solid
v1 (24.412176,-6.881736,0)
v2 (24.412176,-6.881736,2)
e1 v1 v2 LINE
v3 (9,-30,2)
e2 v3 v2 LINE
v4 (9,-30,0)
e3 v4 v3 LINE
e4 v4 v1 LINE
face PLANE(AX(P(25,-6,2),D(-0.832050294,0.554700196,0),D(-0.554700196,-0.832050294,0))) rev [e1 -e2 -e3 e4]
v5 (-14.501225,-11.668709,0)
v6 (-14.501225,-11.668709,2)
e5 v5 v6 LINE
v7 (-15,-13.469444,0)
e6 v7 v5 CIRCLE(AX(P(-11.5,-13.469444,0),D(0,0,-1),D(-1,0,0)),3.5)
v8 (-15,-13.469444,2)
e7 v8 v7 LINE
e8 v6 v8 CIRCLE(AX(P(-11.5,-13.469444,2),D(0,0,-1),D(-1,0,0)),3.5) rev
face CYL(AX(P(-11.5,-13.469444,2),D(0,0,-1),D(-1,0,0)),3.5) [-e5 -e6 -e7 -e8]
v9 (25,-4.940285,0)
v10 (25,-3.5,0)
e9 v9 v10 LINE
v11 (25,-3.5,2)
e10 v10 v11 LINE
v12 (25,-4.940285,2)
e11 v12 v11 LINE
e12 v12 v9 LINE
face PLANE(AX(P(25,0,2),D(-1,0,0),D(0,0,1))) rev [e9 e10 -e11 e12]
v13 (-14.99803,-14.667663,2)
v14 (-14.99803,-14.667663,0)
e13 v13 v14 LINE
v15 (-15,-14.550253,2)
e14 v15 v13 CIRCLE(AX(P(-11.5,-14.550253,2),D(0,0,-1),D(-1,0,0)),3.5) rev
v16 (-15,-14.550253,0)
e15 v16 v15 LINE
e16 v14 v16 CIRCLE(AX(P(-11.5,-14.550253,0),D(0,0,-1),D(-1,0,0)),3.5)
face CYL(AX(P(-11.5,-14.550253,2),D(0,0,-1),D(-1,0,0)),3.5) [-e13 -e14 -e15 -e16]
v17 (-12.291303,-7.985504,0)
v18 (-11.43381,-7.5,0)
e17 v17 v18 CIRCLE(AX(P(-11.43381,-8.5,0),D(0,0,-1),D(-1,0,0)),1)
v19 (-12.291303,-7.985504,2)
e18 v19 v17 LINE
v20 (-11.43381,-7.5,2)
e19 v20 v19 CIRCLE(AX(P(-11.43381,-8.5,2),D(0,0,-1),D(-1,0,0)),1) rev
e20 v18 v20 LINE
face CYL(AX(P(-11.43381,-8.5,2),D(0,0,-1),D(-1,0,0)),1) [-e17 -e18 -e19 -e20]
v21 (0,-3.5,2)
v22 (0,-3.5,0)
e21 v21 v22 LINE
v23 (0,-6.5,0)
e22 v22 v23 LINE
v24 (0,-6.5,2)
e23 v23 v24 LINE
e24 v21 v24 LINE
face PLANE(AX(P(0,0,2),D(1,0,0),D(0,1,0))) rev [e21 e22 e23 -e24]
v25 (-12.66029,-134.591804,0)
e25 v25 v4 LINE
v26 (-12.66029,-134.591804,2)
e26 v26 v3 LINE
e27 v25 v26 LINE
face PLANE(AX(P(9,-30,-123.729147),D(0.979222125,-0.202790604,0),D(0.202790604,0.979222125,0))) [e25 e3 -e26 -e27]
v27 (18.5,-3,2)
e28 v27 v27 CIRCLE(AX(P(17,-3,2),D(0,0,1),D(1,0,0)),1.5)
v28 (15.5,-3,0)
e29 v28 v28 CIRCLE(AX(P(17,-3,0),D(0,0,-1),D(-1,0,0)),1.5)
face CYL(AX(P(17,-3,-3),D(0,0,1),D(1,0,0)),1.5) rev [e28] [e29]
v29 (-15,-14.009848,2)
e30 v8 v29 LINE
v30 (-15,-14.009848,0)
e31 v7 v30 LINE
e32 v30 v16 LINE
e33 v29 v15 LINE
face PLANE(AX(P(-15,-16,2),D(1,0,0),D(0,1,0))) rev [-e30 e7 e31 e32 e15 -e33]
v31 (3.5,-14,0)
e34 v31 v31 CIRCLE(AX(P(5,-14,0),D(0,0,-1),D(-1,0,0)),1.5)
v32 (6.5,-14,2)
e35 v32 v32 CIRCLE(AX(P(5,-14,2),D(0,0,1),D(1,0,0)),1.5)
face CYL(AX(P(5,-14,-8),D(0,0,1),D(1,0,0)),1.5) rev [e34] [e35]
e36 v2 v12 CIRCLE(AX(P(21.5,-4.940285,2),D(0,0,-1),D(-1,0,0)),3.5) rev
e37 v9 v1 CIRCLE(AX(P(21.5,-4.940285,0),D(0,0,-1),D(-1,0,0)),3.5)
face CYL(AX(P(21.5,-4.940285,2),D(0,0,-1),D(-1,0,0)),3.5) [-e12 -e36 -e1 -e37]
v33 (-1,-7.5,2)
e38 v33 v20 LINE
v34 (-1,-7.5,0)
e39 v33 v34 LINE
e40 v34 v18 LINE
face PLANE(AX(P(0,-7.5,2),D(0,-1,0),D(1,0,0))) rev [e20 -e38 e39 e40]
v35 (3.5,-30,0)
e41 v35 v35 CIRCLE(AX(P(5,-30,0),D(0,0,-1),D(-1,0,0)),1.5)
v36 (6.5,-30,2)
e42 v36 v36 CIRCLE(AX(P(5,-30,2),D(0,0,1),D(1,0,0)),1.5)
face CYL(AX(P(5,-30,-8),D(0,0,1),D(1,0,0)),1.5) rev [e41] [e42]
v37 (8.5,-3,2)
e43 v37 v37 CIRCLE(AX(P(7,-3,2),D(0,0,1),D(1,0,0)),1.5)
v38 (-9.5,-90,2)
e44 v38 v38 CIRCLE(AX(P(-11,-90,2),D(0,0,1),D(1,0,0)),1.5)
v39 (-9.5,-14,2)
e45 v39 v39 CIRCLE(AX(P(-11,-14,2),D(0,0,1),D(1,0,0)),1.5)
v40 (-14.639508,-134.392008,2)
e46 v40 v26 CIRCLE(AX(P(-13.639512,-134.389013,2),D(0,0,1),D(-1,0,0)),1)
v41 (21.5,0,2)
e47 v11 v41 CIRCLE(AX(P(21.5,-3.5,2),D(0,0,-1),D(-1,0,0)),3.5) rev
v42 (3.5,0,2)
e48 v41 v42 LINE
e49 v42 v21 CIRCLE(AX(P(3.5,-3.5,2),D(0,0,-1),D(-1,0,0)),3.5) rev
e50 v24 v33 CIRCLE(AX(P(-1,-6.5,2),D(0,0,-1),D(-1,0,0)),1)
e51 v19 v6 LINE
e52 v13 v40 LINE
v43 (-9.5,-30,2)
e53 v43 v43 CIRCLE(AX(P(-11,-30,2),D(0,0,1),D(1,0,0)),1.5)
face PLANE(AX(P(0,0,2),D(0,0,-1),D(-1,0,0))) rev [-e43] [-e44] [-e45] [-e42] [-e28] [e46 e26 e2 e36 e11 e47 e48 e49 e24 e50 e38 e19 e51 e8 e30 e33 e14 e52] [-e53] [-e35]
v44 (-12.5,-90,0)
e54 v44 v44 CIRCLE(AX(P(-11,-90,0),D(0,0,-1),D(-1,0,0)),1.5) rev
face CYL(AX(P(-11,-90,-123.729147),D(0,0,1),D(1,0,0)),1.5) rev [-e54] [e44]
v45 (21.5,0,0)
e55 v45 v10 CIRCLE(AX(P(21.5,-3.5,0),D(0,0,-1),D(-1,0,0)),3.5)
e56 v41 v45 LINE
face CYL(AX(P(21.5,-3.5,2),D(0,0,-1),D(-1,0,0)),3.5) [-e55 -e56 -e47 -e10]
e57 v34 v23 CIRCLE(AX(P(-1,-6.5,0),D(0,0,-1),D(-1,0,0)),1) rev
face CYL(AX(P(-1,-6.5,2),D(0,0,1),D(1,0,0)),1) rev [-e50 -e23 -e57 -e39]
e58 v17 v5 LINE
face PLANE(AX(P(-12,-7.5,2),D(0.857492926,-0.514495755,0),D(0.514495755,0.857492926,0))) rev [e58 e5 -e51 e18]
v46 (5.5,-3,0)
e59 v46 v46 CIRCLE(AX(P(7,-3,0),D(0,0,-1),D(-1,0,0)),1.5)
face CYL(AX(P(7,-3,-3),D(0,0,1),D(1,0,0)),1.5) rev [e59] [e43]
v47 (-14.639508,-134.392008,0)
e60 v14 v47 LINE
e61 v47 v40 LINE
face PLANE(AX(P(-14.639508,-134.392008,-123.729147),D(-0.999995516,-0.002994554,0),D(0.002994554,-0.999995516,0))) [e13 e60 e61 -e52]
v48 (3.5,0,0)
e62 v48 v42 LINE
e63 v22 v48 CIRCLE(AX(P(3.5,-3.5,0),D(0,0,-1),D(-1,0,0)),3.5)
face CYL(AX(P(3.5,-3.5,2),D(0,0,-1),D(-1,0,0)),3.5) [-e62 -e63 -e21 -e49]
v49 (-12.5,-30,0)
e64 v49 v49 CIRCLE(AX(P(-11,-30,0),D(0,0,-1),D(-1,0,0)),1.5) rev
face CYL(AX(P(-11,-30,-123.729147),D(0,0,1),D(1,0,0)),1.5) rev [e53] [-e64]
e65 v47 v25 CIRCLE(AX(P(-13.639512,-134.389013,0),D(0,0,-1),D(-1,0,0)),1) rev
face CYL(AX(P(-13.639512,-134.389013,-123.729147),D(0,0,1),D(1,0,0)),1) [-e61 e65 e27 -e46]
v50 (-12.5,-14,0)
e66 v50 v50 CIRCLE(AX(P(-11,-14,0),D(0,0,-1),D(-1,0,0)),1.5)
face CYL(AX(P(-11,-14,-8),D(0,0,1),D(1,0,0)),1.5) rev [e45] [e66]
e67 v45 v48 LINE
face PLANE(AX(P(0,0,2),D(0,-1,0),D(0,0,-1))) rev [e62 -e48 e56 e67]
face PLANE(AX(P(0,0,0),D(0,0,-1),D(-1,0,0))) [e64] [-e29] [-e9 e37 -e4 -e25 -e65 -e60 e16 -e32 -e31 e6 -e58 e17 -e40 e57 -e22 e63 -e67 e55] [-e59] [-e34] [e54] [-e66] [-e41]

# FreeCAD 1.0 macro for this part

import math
import FreeCAD as App
import Part
import Sketcher
Q = App.Units.Quantity


def edges_at(feature, points):
    """Names of the edges that pass closest to the given points."""
    edges = feature.Shape.Edges
    near = lambda p: min(range(len(edges)), key=lambda i: edges[i].distToShape(Part.Vertex(*p))[0])
    return sorted({f"Edge{near(p) + 1}" for p in points})

doc = App.newDocument("Part")
body = doc.addObject("PartDesign::Body", "Body")

sketch1 = doc.addObject("Sketcher::SketchObject", "Sketch")
body.addObject(sketch1)
sketch1.AttachmentSupport = (doc.XY_Plane, [""])
sketch1.MapMode = "FlatFace"
sketch1.addGeometry([
    Part.LineSegment(App.Vector(-15, -16, 0), App.Vector(5, -36, 0)),
    Part.LineSegment(App.Vector(5, -36, 0), App.Vector(25, -6, 0)),
    Part.LineSegment(App.Vector(25, -6, 0), App.Vector(25, 0, 0)),
    Part.LineSegment(App.Vector(25, 0, 0), App.Vector(0, 0, 0)),
    Part.LineSegment(App.Vector(0, 0, 0), App.Vector(0, -7.5, 0)),
    Part.LineSegment(App.Vector(0, -7.5, 0), App.Vector(-12, -7.5, 0)),
    Part.LineSegment(App.Vector(-12, -7.5, 0), App.Vector(-15, -12.5, 0)),
    Part.LineSegment(App.Vector(-15, -12.5, 0), App.Vector(-15, -16, 0)),
], False)
sketch1.addConstraint([
    Sketcher.Constraint("Coincident", 0, 2, 1, 1),
    Sketcher.Constraint("Coincident", 1, 2, 2, 1),
    Sketcher.Constraint("Coincident", 2, 2, 3, 1),
    Sketcher.Constraint("Coincident", 3, 2, 4, 1),
    Sketcher.Constraint("Coincident", 4, 2, 5, 1),
    Sketcher.Constraint("Coincident", 5, 2, 6, 1),
    Sketcher.Constraint("Coincident", 6, 2, 7, 1),
    Sketcher.Constraint("Coincident", 7, 2, 0, 1),
    Sketcher.Constraint("Vertical", 2),
    Sketcher.Constraint("Horizontal", 3),
    Sketcher.Constraint("Vertical", 4),
    Sketcher.Constraint("Horizontal", 5),
    Sketcher.Constraint("Vertical", 7),
    Sketcher.Constraint("Coincident", 3, 2, -1, 1),
    Sketcher.Constraint("DistanceX", 3, 2, 3, 1, 25.0),
    Sketcher.Constraint("DistanceX", 5, 2, 5, 1, 12.0),
    Sketcher.Constraint("DistanceY", 2, 1, 2, 2, 6.0),
    Sketcher.Constraint("Angle", 0, Q("-45 deg")),
    Sketcher.Constraint("DistanceY", 4, 2, 4, 1, 7.5),
    Sketcher.Constraint("DistanceY", 7, 2, 7, 1, 3.5),
    Sketcher.Constraint("DistanceX", -1, 1, 0, 2, 5.0),
    Sketcher.Constraint("DistanceY", 0, 2, -1, 1, 36.0),
    Sketcher.Constraint("DistanceX", 6, 2, -1, 1, 15.0),
])
pad1 = doc.addObject("PartDesign::Pad", "Pad")
body.addObject(pad1)
pad1.Profile = sketch1
pad1.Length = 2

sketch2 = doc.addObject("Sketcher::SketchObject", "Sketch001")
body.addObject(sketch2)
sketch2.AttachmentSupport = (doc.XY_Plane, [""])
sketch2.MapMode = "FlatFace"
sketch2.AttachmentOffset = App.Placement(App.Vector(0, 0, 2), App.Rotation())
sketch2.addGeometry([
    Part.Circle(App.Vector(17, -3, 0), App.Vector(0, 0, 1), 1.5),
    Part.Circle(App.Vector(7, -3, 0), App.Vector(0, 0, 1), 1.5),
], False)
sketch2.addConstraint([
    Sketcher.Constraint("Equal", 0, 1),
    Sketcher.Constraint("Horizontal", 0, 3, 1, 3),
    Sketcher.Constraint("Diameter", 0, 3.0),
    Sketcher.Constraint("DistanceX", -1, 1, 0, 3, 17.0),
    Sketcher.Constraint("DistanceY", 0, 3, -1, 1, 3.0),
    Sketcher.Constraint("DistanceX", -1, 1, 1, 3, 7.0),
])
pocket1 = doc.addObject("PartDesign::Pocket", "Pocket")
body.addObject(pocket1)
pocket1.Profile = sketch2
pocket1.Length = 5

sketch3 = doc.addObject("Sketcher::SketchObject", "Sketch002")
body.addObject(sketch3)
sketch3.AttachmentSupport = (doc.XY_Plane, [""])
sketch3.MapMode = "FlatFace"
sketch3.AttachmentOffset = App.Placement(App.Vector(0, 0, 2), App.Rotation())
sketch3.addGeometry([
    Part.Circle(App.Vector(5, -30, 0), App.Vector(0, 0, 1), 1.5),
    Part.Circle(App.Vector(5, -14, 0), App.Vector(0, 0, 1), 1.5),
    Part.Circle(App.Vector(-11, -14, 0), App.Vector(0, 0, 1), 1.5),
], False)
sketch3.addConstraint([
    Sketcher.Constraint("Equal", 0, 1),
    Sketcher.Constraint("Equal", 1, 2),
    Sketcher.Constraint("Horizontal", 1, 3, 2, 3),
    Sketcher.Constraint("Vertical", 0, 3, 1, 3),
    Sketcher.Constraint("Diameter", 0, 3.0),
    Sketcher.Constraint("DistanceX", -1, 1, 0, 3, 5.0),
    Sketcher.Constraint("DistanceY", 0, 3, -1, 1, 30.0),
    Sketcher.Constraint("DistanceY", 1, 3, -1, 1, 14.0),
    Sketcher.Constraint("DistanceX", 2, 3, -1, 1, 11.0),
])
pocket2 = doc.addObject("PartDesign::Pocket", "Pocket001")
body.addObject(pocket2)
pocket2.Profile = sketch3
pocket2.Length = 10
doc.recompute()

fillet = doc.addObject("PartDesign::Fillet", "Fillet")
body.addObject(fillet)
fillet.Base = (pocket2, edges_at(pocket2, [
    (25, 0, 1),
    (25, -6, 1),
    (5, -36, 1),
    (-15, -16, 1),
    (-15, -12.5, 1),
    (0, 0, 1),
]))
fillet.Radius = 3.5
doc.recompute()

fillet2 = doc.addObject("PartDesign::Fillet", "Fillet001")
body.addObject(fillet2)
fillet2.Base = (fillet, edges_at(fillet, [(-12, -7.5, 1), (0, -7.5, 1)]))
fillet2.Radius = 1

sketch4 = doc.addObject("Sketcher::SketchObject", "Sketch003")
body.addObject(sketch4)
sketch4.AttachmentSupport = (doc.XY_Plane, [""])
sketch4.MapMode = "FlatFace"
sketch4.AttachmentOffset = App.Placement(App.Vector(0, 0, 2), App.Rotation())
sketch4.addGeometry([
    Part.LineSegment(App.Vector(-12.7, -134.6, 0), App.Vector(9, -30, 0)),
    Part.LineSegment(App.Vector(9, -30, 0), App.Vector(-15, -14, 0)),
    Part.LineSegment(App.Vector(-15, -14, 0), App.Vector(-14.6, -134.4, 0)),
    Part.ArcOfCircle(Part.Circle(App.Vector(-13.6, -134.4, 0), App.Vector(0, 0, 1), 1), math.radians(-180), math.radians(-12)),
    Part.Circle(App.Vector(-11, -90, 0), App.Vector(0, 0, 1), 1.5),
    Part.Circle(App.Vector(5, -30, 0), App.Vector(0, 0, 1), 1.5),
    Part.Circle(App.Vector(-11, -30, 0), App.Vector(0, 0, 1), 1.5),
], False)
sketch4.addConstraint([
    Sketcher.Constraint("Coincident", 0, 2, 1, 1),
    Sketcher.Constraint("Coincident", 1, 2, 2, 1),
    Sketcher.Constraint("Tangent", 2, 2, 3, 1),
    Sketcher.Constraint("Tangent", 3, 2, 0, 1),
    Sketcher.Constraint("Equal", 4, 5),
    Sketcher.Constraint("Equal", 5, 6),
    Sketcher.Constraint("Horizontal", 5, 3, 6, 3),
    Sketcher.Constraint("Horizontal", 6, 3, 0, 2),
    Sketcher.Constraint("Vertical", 4, 3, 6, 3),
    Sketcher.Constraint("Diameter", 4, 3.0),
    Sketcher.Constraint("Radius", 3, 1.0),
    Sketcher.Constraint("DistanceX", 4, 3, -1, 1, 11.0),
    Sketcher.Constraint("DistanceY", 4, 3, -1, 1, 90.0),
    Sketcher.Constraint("DistanceX", -1, 1, 5, 3, 5.0),
    Sketcher.Constraint("DistanceY", 5, 3, -1, 1, 30.0),
    Sketcher.Constraint("DistanceX", -1, 1, 0, 2, 9.0),
    Sketcher.Constraint("DistanceX", 1, 2, -1, 1, 15.0),
    Sketcher.Constraint("Distance", 2, 120.3827),
    Sketcher.Constraint("Distance", 0, 106.811112),
    Sketcher.Constraint("Distance", 1, 28.838949),
])
pad2 = doc.addObject("PartDesign::Pad", "Pad001")
body.addObject(pad2)
pad2.Profile = sketch4
pad2.Length = 2
pad2.Reversed = True

doc.recompute()
